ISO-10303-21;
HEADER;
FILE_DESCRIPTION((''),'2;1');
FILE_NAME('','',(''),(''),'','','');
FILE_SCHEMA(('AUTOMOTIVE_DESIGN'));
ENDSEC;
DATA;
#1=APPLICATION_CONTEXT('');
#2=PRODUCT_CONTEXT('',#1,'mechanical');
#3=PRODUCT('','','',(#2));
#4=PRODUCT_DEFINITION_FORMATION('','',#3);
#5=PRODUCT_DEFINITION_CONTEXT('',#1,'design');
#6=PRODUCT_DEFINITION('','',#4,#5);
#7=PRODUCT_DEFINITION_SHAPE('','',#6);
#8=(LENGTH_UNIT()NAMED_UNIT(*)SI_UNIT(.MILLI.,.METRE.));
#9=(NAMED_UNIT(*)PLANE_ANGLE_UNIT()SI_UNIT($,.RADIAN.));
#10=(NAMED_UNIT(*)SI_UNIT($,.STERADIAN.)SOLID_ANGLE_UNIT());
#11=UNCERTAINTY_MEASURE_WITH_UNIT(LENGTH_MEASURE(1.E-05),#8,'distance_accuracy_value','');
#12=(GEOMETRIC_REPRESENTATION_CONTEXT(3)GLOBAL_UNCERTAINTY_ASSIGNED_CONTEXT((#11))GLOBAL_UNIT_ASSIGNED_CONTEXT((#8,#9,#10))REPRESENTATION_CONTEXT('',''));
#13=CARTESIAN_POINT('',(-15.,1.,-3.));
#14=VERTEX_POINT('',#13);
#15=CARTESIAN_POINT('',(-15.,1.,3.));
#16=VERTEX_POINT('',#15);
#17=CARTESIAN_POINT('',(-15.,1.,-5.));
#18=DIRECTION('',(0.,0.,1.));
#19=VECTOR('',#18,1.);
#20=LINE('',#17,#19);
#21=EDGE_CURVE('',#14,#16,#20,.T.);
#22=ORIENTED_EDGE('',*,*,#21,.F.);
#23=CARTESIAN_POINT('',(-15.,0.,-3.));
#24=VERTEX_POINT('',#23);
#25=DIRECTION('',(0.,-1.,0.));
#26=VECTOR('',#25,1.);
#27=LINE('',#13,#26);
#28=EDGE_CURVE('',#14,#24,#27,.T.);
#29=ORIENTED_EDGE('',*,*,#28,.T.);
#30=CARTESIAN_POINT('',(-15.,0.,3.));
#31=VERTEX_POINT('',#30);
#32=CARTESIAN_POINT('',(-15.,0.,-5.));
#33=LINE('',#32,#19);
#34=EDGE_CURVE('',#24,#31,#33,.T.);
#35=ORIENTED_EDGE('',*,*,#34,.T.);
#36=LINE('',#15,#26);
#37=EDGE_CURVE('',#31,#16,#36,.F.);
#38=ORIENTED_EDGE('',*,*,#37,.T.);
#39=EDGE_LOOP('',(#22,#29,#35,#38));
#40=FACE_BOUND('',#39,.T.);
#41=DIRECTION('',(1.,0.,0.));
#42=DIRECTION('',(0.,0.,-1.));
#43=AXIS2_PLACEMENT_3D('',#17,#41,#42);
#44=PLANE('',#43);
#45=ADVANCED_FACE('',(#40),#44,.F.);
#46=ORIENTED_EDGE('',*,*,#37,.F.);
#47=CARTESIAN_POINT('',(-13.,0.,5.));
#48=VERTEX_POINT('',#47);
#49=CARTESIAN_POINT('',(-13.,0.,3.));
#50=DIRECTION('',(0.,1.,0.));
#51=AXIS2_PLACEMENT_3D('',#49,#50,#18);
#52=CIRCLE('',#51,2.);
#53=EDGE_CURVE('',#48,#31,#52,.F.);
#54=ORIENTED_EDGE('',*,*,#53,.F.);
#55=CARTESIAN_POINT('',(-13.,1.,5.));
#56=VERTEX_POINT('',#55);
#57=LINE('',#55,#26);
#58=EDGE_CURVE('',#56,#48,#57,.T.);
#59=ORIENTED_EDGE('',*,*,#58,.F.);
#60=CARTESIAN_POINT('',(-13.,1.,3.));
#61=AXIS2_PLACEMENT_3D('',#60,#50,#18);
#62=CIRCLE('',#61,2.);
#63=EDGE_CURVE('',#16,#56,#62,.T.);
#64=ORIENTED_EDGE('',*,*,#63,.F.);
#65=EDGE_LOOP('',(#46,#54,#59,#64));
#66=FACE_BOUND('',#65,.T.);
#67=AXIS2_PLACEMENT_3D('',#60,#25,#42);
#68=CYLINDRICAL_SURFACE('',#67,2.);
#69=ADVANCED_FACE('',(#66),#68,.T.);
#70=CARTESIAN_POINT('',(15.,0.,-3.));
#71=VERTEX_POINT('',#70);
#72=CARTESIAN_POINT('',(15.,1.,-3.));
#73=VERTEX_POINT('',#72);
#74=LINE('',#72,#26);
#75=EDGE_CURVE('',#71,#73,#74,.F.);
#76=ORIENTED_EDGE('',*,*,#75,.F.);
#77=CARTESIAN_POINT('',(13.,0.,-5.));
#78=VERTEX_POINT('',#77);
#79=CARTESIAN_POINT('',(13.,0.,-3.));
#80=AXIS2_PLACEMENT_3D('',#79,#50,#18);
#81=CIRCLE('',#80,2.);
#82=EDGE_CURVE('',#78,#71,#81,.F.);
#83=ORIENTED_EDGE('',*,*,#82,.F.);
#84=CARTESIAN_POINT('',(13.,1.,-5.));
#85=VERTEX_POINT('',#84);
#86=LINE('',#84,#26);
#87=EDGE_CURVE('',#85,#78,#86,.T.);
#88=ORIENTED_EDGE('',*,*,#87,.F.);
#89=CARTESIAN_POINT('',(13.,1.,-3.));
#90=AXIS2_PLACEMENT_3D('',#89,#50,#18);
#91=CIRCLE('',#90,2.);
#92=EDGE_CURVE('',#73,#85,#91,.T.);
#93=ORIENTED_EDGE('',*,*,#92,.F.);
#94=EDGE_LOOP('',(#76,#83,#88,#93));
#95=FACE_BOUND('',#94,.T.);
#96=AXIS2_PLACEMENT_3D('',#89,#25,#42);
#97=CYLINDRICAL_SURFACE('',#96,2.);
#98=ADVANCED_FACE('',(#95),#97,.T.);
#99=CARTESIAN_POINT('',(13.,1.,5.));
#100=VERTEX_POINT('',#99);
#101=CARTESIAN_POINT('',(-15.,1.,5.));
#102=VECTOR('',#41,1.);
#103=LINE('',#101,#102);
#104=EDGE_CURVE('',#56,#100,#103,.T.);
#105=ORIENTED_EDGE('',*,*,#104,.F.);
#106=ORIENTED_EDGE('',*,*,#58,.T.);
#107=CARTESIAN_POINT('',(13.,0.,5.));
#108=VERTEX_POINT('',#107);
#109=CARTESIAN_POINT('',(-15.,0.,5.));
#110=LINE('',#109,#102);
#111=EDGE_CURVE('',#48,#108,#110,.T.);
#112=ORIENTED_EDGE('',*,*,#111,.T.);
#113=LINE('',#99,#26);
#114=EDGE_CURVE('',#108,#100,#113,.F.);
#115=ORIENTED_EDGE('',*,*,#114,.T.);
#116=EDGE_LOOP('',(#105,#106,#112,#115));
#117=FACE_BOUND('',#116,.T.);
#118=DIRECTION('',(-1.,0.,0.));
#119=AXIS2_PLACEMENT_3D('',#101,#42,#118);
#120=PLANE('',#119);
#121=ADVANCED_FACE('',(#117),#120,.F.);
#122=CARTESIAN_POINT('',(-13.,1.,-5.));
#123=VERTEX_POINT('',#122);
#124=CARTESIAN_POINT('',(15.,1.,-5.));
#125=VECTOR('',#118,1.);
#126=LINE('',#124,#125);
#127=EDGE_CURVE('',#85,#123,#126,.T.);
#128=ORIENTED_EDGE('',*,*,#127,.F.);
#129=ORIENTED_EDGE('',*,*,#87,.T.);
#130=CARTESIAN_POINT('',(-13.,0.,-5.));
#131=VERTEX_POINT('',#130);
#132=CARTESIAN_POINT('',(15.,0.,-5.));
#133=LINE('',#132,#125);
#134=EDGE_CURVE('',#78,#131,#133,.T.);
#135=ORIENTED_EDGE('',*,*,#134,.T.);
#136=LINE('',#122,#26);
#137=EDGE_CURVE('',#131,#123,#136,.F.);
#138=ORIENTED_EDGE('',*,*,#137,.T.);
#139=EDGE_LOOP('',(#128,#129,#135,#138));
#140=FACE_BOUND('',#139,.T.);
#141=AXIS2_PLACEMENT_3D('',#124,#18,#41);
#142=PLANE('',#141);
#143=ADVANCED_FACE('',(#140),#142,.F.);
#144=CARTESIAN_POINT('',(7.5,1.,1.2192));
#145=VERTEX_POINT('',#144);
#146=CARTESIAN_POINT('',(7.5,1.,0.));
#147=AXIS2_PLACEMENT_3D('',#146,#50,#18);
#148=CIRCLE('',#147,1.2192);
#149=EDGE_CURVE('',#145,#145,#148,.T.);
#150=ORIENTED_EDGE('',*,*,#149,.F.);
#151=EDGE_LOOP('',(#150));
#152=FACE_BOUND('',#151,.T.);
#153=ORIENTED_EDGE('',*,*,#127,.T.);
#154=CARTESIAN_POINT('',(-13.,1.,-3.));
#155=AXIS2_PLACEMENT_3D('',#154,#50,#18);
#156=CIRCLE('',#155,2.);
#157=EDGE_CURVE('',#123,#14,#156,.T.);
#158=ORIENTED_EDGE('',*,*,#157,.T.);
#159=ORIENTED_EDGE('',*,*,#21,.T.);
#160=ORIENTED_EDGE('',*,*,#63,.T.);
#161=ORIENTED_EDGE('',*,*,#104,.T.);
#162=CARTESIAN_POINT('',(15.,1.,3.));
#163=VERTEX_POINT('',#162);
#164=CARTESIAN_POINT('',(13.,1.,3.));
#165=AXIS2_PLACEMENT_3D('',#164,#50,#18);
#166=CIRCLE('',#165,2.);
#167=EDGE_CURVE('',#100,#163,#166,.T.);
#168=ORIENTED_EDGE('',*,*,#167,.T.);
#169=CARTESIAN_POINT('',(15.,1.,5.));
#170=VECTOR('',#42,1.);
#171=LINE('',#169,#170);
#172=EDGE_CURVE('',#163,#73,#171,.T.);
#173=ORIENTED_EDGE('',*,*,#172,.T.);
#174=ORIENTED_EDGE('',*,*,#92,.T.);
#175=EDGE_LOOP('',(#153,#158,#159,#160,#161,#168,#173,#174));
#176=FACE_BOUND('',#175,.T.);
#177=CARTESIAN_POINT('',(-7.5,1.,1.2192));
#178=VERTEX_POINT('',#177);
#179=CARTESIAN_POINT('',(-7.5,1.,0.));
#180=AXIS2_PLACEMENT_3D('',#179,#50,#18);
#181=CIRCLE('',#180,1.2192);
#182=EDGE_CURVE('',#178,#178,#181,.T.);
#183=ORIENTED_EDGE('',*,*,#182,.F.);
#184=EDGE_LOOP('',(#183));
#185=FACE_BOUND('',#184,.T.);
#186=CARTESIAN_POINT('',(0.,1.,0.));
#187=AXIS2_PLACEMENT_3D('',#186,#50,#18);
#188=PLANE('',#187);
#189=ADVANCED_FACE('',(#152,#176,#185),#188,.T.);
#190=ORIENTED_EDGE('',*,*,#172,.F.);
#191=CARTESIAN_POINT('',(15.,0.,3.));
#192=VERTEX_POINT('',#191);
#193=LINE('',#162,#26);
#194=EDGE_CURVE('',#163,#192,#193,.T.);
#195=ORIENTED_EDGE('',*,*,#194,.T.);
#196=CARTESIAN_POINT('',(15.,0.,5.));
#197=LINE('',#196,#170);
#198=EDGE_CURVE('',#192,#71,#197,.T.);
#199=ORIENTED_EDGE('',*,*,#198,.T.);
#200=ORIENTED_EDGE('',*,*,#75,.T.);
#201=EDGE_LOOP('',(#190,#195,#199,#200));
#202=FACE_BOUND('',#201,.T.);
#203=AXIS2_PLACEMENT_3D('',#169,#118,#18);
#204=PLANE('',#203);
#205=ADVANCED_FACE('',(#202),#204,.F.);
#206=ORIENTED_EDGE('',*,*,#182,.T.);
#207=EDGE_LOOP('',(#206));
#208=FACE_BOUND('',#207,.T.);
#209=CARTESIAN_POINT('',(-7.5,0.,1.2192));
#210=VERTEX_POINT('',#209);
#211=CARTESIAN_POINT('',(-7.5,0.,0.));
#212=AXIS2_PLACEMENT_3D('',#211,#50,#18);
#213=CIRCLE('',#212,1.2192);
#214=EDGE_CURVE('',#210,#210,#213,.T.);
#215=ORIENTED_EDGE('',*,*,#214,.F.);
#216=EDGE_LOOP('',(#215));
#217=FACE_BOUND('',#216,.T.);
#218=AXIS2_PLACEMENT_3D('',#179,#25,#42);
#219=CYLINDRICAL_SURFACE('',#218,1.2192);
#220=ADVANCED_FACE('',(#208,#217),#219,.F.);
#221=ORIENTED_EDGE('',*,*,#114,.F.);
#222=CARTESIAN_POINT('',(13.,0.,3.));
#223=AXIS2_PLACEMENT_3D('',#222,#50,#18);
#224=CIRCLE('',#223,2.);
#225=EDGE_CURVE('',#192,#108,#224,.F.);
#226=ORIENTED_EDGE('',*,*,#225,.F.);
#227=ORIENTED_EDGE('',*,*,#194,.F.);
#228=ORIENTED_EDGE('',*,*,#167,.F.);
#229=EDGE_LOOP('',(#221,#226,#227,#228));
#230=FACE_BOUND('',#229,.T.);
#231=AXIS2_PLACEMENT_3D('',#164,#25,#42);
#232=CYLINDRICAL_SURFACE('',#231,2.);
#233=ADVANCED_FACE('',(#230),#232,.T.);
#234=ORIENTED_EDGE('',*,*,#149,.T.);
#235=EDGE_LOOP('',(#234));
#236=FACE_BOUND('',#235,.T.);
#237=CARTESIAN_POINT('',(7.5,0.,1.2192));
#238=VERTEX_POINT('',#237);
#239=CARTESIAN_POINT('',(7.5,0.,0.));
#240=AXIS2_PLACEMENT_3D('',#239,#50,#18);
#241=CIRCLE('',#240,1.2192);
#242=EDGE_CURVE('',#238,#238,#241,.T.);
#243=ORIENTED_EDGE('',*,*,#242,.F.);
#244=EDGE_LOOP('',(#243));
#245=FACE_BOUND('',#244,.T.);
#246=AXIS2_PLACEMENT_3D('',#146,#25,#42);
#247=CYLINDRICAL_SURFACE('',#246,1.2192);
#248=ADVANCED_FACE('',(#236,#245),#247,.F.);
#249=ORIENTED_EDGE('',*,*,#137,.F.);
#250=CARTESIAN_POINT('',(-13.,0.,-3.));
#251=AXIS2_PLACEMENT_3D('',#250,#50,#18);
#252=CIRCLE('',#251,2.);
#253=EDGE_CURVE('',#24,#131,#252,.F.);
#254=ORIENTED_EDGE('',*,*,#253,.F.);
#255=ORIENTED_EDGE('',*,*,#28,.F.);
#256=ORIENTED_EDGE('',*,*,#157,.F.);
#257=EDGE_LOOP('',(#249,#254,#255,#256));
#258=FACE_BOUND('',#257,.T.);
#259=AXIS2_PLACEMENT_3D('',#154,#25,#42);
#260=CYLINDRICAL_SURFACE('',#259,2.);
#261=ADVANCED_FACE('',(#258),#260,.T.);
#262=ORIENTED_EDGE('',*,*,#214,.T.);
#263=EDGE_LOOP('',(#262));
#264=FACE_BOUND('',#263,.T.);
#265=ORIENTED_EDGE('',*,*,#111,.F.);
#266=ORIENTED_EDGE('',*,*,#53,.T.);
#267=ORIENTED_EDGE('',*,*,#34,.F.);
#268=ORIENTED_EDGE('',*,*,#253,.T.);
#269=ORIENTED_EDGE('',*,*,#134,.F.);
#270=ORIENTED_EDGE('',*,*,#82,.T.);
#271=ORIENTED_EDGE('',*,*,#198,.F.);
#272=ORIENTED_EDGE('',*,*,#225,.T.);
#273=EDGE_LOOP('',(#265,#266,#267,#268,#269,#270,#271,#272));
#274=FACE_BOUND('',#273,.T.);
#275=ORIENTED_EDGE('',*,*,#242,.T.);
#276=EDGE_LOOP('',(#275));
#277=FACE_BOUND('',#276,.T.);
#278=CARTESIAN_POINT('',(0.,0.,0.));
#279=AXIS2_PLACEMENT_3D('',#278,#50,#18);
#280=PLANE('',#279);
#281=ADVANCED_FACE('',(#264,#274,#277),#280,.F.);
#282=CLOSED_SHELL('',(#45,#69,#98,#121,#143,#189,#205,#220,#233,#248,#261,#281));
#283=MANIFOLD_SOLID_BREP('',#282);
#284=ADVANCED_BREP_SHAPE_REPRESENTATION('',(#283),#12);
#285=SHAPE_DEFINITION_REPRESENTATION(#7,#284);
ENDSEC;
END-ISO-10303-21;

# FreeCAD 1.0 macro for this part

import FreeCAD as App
import Part
import Sketcher

V = App.Vector


def edges_at(feature, points):
    """Names of the edges that pass closest to the given points."""
    edges = feature.Shape.Edges
    near = lambda p: min(range(len(edges)), key=lambda i: edges[i].distToShape(Part.Vertex(*p))[0])
    return sorted({f"Edge{near(p) + 1}" for p in points})


def add_polygon(sketch, points):
    """Adds a closed chain of lines whose ends are joined by coincident constraints."""
    first, n = sketch.GeometryCount, len(points)
    for a, b in zip(points, points[1:] + points[:1]):
        sketch.addGeometry(Part.LineSegment(App.Vector(*a, 0), App.Vector(*b, 0)), False)
    for i in range(n):
        sketch.addConstraint(Sketcher.Constraint("Coincident", first + i, 2, first + (i + 1) % n, 1))

doc = App.newDocument("Part")
params = doc.addObject("Spreadsheet::Sheet", "Params")
for row, (alias, value) in enumerate([
    ("sketch1_width", "30 mm"),
    ("sketch1_height", "10 mm"),
    ("pad1_length", "1 mm"),
    ("fillet_radius", "2 mm"),
], start=1):
    params.set(f"A{row}", alias)
    params.set(f"B{row}", "=" + value)
    params.setAlias(f"B{row}", alias)

body = doc.addObject("PartDesign::Body", "Body")

# Sketch on XZ plane
sketch1 = doc.addObject("Sketcher::SketchObject", "Sketch")
body.addObject(sketch1)
sketch1.AttachmentSupport = (doc.XZ_Plane, [""])
sketch1.MapMode = "FlatFace"
add_polygon(sketch1, [(-15, -5), (-15, 5), (15, 5), (15, -5)])  # lines 0-3
sketch1.addGeometry(Part.Circle(V(-7.5, 0, 0), V(0, 0, 1), 1.2), False)  # 4
sketch1.addGeometry(Part.Circle(V(7.5, 0, 0), V(0, 0, 1), 1.2), False)  # 5
sketch1.addConstraint(Sketcher.Constraint("Vertical", 0))
sketch1.addConstraint(Sketcher.Constraint("Horizontal", 1))
sketch1.addConstraint(Sketcher.Constraint("Vertical", 2))
sketch1.addConstraint(Sketcher.Constraint("Horizontal", 3))
sketch1.addConstraint(Sketcher.Constraint("Equal", 4, 5))
sketch1.addConstraint(Sketcher.Constraint("Symmetric", 4, 3, 5, 3, -1, 1))
sketch1.addConstraint(Sketcher.Constraint("Symmetric", 0, 2, 2, 2, -1, 1))
sketch1.addConstraint(Sketcher.Constraint("PointOnObject", 4, 3, -1))
sketch1.addConstraint(Sketcher.Constraint("DistanceX", 1, 1, 1, 2, 30.0))
sketch1.addConstraint(Sketcher.Constraint("DistanceY", 0, 1, 0, 2, 10.0))
sketch1.addConstraint(Sketcher.Constraint("DistanceX", 4, 3, 5, 3, 15.0))
sketch1.addConstraint(Sketcher.Constraint("Diameter", 4, 2.4384))
sketch1.setExpression("Constraints[12]", "Params.sketch1_width")
sketch1.setExpression("Constraints[13]", "Params.sketch1_height")
pad1 = doc.addObject("PartDesign::Pad", "Pad")
body.addObject(pad1)
pad1.Profile = sketch1
pad1.setExpression("Length", "Params.pad1_length")
pad1.Reversed = True
doc.recompute()

fillet = doc.addObject("PartDesign::Fillet", "Fillet")
body.addObject(fillet)
fillet.Base = (pad1, edges_at(pad1, [
    (-15, 0.5, -5),
    (15, 0.5, -5),
    (15, 0.5, 5),
    (-15, 0.5, 5),
]))
fillet.setExpression("Radius", "Params.fillet_radius")

doc.recompute()
